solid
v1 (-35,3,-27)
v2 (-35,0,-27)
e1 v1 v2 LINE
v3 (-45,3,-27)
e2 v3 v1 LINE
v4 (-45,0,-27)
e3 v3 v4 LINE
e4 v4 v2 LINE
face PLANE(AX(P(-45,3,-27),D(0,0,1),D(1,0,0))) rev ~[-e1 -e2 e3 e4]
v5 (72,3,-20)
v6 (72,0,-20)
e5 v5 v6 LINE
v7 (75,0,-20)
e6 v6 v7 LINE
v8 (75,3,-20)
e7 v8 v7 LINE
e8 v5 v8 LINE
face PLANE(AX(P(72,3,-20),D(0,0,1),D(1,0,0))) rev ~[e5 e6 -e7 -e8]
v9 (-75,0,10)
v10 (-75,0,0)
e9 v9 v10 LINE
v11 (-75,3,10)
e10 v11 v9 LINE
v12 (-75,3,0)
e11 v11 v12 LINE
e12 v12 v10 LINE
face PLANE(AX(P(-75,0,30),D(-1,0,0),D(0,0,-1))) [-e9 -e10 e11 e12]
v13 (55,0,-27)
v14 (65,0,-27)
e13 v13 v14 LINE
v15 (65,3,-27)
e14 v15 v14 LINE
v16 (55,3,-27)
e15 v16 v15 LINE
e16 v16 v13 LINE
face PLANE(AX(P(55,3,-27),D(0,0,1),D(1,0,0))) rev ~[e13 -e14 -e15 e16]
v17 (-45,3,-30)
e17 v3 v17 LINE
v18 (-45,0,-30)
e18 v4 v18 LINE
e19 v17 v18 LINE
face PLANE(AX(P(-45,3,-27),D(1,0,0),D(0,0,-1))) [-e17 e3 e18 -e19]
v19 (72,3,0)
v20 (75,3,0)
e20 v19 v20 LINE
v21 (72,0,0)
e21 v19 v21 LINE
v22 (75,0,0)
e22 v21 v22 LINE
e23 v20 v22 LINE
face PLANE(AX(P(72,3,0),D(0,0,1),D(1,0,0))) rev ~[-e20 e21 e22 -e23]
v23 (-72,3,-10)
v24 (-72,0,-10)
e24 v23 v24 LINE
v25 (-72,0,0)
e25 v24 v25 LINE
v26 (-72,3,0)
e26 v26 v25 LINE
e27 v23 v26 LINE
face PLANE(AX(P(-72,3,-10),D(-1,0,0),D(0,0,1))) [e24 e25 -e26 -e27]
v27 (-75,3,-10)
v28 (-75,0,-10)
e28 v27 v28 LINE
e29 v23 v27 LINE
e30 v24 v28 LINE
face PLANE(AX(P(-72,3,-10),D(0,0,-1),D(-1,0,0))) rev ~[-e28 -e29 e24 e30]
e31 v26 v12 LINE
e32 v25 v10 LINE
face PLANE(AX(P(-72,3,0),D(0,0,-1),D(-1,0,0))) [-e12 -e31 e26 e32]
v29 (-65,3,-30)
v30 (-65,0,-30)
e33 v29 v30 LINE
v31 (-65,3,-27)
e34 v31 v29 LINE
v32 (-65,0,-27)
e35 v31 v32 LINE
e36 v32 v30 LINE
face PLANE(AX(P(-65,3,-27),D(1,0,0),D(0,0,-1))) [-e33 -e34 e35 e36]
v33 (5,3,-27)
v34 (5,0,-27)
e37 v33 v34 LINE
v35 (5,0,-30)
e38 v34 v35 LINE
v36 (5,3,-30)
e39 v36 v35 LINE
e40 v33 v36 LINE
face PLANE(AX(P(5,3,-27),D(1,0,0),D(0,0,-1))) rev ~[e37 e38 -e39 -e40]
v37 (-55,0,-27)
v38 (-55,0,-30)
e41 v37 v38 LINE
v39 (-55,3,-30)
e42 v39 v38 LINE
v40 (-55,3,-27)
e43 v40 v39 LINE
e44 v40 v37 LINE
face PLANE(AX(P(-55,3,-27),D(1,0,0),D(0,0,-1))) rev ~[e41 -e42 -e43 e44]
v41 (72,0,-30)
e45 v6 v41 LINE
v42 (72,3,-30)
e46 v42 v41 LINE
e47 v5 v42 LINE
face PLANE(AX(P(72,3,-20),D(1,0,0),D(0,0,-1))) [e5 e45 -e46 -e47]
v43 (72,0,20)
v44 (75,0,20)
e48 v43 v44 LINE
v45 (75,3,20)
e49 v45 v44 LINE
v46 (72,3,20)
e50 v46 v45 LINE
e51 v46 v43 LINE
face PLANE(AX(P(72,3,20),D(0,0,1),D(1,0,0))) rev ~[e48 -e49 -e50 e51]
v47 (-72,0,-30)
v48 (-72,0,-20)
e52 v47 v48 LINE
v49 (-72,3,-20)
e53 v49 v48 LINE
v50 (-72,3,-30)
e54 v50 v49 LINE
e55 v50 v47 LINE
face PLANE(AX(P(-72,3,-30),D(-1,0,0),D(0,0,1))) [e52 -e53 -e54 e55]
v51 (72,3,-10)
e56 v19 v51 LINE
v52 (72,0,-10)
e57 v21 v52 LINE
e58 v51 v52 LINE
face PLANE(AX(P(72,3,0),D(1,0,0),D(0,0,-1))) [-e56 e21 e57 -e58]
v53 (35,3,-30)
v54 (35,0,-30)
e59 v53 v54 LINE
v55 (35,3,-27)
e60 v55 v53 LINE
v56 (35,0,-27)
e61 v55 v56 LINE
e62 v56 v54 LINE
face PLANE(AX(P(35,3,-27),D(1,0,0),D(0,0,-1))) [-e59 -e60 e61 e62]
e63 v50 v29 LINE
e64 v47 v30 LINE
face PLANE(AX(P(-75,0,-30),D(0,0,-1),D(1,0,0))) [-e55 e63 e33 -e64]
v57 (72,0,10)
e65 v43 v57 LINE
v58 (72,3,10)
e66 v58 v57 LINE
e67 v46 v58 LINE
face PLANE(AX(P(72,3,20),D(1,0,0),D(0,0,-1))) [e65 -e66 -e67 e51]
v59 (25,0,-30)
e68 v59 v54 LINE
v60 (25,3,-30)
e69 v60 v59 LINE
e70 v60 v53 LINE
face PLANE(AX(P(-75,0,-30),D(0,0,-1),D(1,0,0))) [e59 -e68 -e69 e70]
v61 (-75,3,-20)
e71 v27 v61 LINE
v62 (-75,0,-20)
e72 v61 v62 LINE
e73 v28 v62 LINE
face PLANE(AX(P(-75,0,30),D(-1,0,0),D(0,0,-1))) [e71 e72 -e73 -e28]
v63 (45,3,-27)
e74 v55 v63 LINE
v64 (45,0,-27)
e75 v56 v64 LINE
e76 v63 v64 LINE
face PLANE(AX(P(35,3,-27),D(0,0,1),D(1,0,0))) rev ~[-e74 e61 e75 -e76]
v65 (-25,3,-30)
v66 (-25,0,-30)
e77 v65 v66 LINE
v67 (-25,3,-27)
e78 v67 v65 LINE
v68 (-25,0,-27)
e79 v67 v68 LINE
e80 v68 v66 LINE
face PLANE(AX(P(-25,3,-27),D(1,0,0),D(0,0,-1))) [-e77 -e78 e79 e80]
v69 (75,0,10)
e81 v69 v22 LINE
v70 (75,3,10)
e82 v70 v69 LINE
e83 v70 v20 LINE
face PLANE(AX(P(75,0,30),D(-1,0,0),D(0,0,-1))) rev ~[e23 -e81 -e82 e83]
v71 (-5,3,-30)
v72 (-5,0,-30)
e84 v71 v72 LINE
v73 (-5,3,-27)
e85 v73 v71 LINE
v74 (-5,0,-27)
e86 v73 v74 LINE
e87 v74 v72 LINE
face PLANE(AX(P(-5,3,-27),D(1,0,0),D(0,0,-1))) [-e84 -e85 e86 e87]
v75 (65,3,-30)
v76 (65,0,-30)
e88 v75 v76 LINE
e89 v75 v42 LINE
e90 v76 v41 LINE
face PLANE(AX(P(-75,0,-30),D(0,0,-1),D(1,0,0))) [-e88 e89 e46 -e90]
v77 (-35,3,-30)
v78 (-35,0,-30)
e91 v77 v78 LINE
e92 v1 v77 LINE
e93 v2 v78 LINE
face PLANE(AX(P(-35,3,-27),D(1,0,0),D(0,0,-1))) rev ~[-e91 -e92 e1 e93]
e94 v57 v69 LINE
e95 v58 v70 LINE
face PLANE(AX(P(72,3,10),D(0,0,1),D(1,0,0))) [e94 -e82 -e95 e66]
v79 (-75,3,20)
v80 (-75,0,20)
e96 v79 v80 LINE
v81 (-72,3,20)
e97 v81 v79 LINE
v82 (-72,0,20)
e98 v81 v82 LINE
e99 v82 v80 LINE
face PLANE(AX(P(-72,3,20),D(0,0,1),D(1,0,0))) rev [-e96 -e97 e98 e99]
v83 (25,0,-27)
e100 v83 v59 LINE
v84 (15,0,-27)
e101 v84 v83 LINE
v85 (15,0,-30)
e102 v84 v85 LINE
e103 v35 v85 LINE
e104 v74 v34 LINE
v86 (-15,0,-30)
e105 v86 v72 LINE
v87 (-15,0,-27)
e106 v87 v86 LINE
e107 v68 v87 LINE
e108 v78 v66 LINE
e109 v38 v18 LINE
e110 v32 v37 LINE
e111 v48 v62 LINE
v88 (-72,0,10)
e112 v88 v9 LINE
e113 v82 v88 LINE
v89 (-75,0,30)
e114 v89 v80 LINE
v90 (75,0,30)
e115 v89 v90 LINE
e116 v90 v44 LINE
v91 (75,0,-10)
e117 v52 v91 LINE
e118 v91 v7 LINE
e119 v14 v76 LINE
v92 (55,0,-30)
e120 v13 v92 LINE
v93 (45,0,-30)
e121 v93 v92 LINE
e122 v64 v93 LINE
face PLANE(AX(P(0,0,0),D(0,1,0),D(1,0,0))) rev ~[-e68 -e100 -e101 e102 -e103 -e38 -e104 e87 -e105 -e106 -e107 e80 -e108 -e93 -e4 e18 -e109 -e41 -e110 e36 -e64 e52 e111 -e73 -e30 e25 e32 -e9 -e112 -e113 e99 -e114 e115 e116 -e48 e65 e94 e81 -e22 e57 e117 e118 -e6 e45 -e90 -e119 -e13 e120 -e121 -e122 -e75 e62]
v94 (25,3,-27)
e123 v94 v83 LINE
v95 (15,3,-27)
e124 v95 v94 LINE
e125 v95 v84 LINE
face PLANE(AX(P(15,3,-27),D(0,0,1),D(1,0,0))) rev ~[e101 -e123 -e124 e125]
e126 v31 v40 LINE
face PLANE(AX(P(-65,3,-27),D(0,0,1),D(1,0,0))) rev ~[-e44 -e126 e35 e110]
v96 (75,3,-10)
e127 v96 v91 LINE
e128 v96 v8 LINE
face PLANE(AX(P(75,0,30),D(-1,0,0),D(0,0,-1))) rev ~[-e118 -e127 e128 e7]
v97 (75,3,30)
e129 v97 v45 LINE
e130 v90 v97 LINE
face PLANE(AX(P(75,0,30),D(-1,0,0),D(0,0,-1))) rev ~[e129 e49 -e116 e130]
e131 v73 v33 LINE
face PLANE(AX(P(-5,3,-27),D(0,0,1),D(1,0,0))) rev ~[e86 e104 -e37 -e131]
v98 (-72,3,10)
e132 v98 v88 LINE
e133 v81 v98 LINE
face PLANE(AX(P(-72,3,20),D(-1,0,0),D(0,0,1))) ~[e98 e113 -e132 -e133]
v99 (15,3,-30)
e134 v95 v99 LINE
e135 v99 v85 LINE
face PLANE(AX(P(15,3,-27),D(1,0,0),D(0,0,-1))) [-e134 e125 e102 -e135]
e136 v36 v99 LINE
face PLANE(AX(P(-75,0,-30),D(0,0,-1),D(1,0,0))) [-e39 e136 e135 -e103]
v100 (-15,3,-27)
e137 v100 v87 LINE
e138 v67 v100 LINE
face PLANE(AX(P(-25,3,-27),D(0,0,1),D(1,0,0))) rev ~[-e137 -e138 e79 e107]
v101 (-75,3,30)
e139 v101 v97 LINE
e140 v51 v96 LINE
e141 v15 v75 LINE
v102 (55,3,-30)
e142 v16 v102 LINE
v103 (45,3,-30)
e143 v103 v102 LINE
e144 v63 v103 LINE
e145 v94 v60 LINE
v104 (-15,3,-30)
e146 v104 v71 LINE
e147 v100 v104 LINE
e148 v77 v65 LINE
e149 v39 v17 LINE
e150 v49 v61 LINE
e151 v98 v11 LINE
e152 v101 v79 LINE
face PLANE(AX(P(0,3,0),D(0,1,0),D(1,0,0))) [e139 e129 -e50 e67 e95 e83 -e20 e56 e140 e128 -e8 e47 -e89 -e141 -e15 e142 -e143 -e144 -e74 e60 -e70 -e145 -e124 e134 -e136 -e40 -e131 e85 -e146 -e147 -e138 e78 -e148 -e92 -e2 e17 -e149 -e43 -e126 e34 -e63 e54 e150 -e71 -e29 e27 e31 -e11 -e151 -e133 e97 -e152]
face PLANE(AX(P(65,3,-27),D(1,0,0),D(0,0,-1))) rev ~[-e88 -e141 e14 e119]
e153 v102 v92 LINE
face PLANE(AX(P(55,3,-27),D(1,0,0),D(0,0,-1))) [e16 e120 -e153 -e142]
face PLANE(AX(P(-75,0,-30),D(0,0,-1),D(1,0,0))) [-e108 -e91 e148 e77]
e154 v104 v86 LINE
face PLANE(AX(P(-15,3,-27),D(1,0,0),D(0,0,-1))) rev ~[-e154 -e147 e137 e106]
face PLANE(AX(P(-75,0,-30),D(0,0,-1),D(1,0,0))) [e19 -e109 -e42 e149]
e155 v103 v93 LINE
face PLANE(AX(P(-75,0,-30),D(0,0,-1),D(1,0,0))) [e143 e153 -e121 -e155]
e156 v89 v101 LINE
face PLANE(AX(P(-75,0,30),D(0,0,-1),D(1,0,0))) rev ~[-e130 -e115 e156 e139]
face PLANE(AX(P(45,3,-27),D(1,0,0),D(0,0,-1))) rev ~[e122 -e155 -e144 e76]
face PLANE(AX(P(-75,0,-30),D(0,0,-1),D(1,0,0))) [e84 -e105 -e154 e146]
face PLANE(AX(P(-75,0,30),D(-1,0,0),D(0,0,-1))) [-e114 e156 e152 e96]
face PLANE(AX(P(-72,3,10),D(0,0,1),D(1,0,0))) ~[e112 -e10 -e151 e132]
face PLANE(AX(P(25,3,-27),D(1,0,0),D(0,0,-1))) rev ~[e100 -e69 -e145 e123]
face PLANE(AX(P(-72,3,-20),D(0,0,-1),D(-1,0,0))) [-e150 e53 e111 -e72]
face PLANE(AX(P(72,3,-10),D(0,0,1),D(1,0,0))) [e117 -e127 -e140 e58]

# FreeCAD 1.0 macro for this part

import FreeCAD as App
import Part
import Sketcher

V = App.Vector

doc = App.newDocument("Part")
params = doc.addObject("Spreadsheet::Sheet", "Params")
for row, (alias, value) in enumerate([
    ("sketch1_width", "150 mm"),
    ("sketch1_height", "60 mm"),
    ("pad1_length", "3 mm"),
    ("sketch2_width", "3 mm"),
    ("sketch2_height", "10 mm"),
    ("linearpattern_pitch", "20 mm"),
    ("sketch3_width", "3 mm"),
    ("sketch3_height", "10 mm"),
    ("sketch4_width", "3 mm"),
    ("sketch4_height", "10 mm"),
    ("sketch5_width", "10 mm"),
    ("sketch5_height", "3 mm"),
    ("linearpattern2_pitch", "20 mm"),
], start=1):
    params.set(f"A{row}", alias)
    params.set(f"B{row}", "=" + value)
    params.setAlias(f"B{row}", alias)

body = doc.addObject("PartDesign::Body", "Body")

# Sketch on XZ plane
sketch1 = doc.addObject("Sketcher::SketchObject", "Sketch")
body.addObject(sketch1)
sketch1.AttachmentSupport = (doc.XZ_Plane, [""])
sketch1.MapMode = "FlatFace"
sketch1.addGeometry([
    Part.LineSegment(V(-75, -30, 0), V(-75, 30, 0)),
    Part.LineSegment(V(-75, 30, 0), V(75, 30, 0)),
    Part.LineSegment(V(75, 30, 0), V(75, -30, 0)),
    Part.LineSegment(V(75, -30, 0), V(-75, -30, 0)),
], False)
sketch1.addConstraint([
    Sketcher.Constraint("Coincident", 0, 2, 1, 1),
    Sketcher.Constraint("Coincident", 1, 2, 2, 1),
    Sketcher.Constraint("Coincident", 2, 2, 3, 1),
    Sketcher.Constraint("Coincident", 3, 2, 0, 1),
    Sketcher.Constraint("Vertical", 0),
    Sketcher.Constraint("Horizontal", 1),
    Sketcher.Constraint("Vertical", 2),
    Sketcher.Constraint("Horizontal", 3),
    Sketcher.Constraint("Symmetric", 0, 2, 2, 2, -1, 1),
    Sketcher.Constraint("DistanceX", 1, 1, 1, 2, 150.0),
    Sketcher.Constraint("DistanceY", 0, 1, 0, 2, 60.0),
])
sketch1.setExpression("Constraints[9]", "Params.sketch1_width")
sketch1.setExpression("Constraints[10]", "Params.sketch1_height")
pad1 = doc.addObject("PartDesign::Pad", "Pad")
body.addObject(pad1)
pad1.Profile = sketch1
pad1.setExpression("Length", "Params.pad1_length")
pad1.Reversed = True

# Sketch on XZ plane
sketch2 = doc.addObject("Sketcher::SketchObject", "Sketch001")
body.addObject(sketch2)
sketch2.AttachmentSupport = (doc.XZ_Plane, [""])
sketch2.MapMode = "FlatFace"
sketch2.AttachmentOffset = App.Placement(V(0, 0, -3), App.Rotation())
sketch2.addGeometry([
    Part.LineSegment(V(72, 10, 0), V(72, 20, 0)),
    Part.LineSegment(V(72, 20, 0), V(75, 20, 0)),
    Part.LineSegment(V(75, 20, 0), V(75, 10, 0)),
    Part.LineSegment(V(75, 10, 0), V(72, 10, 0)),
], False)
sketch2.addConstraint([
    Sketcher.Constraint("Coincident", 0, 2, 1, 1),
    Sketcher.Constraint("Coincident", 1, 2, 2, 1),
    Sketcher.Constraint("Coincident", 2, 2, 3, 1),
    Sketcher.Constraint("Coincident", 3, 2, 0, 1),
    Sketcher.Constraint("Vertical", 0),
    Sketcher.Constraint("Horizontal", 1),
    Sketcher.Constraint("Vertical", 2),
    Sketcher.Constraint("Horizontal", 3),
    Sketcher.Constraint("DistanceX", 1, 1, 1, 2, 3.0),
    Sketcher.Constraint("DistanceY", 0, 1, 0, 2, 10.0),
    Sketcher.Constraint("DistanceX", -1, 1, 0, 2, 72.0),
    Sketcher.Constraint("DistanceY", -1, 1, 0, 2, 20.0),
])
sketch2.setExpression("Constraints[8]", "Params.sketch2_width")
sketch2.setExpression("Constraints[9]", "Params.sketch2_height")
pocket1 = doc.addObject("PartDesign::Pocket", "Pocket")
body.addObject(pocket1)
pocket1.Profile = sketch2
pocket1.Type = "ThroughAll"
pocket1.Reversed = True
doc.recompute()

linearpattern = doc.addObject("PartDesign::LinearPattern", "LinearPattern")
body.addObject(linearpattern)
linearpattern.Originals = [pocket1]
linearpattern.Direction = (doc.Z_Axis, [""])
linearpattern.Mode = "offset"
linearpattern.setExpression("Offset", "Params.linearpattern_pitch")
linearpattern.Occurrences = 3
linearpattern.Reversed = True
body.Tip = linearpattern
doc.recompute()

mirrored = doc.addObject("PartDesign::Mirrored", "Mirrored")
body.addObject(mirrored)
mirrored.Originals = [pocket1]
mirrored.MirrorPlane = (doc.YZ_Plane, [""])
body.Tip = mirrored

# Sketch on XZ plane
sketch3 = doc.addObject("Sketcher::SketchObject", "Sketch002")
body.addObject(sketch3)
sketch3.AttachmentSupport = (doc.XZ_Plane, [""])
sketch3.MapMode = "FlatFace"
sketch3.AttachmentOffset = App.Placement(V(0, 0, -3), App.Rotation())
sketch3.addGeometry([
    Part.LineSegment(V(-72, 0, 0), V(-72, -10, 0)),
    Part.LineSegment(V(-72, -10, 0), V(-75, -10, 0)),
    Part.LineSegment(V(-75, -10, 0), V(-75, 0, 0)),
    Part.LineSegment(V(-75, 0, 0), V(-72, 0, 0)),
], False)
sketch3.addConstraint([
    Sketcher.Constraint("Coincident", 0, 2, 1, 1),
    Sketcher.Constraint("Coincident", 1, 2, 2, 1),
    Sketcher.Constraint("Coincident", 2, 2, 3, 1),
    Sketcher.Constraint("Coincident", 3, 2, 0, 1),
    Sketcher.Constraint("Vertical", 0),
    Sketcher.Constraint("Horizontal", 1),
    Sketcher.Constraint("Vertical", 2),
    Sketcher.Constraint("Horizontal", 3),
    Sketcher.Constraint("PointOnObject", 2, 2, -1),
    Sketcher.Constraint("DistanceX", 1, 2, 1, 1, 3.0),
    Sketcher.Constraint("DistanceY", 0, 2, 0, 1, 10.0),
    Sketcher.Constraint("DistanceX", 0, 2, -1, 1, 72.0),
])
sketch3.setExpression("Constraints[9]", "Params.sketch3_width")
sketch3.setExpression("Constraints[10]", "Params.sketch3_height")
pocket2 = doc.addObject("PartDesign::Pocket", "Pocket001")
body.addObject(pocket2)
pocket2.Profile = sketch3
pocket2.Type = "ThroughAll"
pocket2.Reversed = True

# Sketch on XZ plane
sketch4 = doc.addObject("Sketcher::SketchObject", "Sketch003")
body.addObject(sketch4)
sketch4.AttachmentSupport = (doc.XZ_Plane, [""])
sketch4.MapMode = "FlatFace"
sketch4.AttachmentOffset = App.Placement(V(0, 0, -3), App.Rotation())
sketch4.addGeometry([
    Part.LineSegment(V(-72, -20, 0), V(-72, -30, 0)),
    Part.LineSegment(V(-72, -30, 0), V(-75, -30, 0)),
    Part.LineSegment(V(-75, -30, 0), V(-75, -20, 0)),
    Part.LineSegment(V(-75, -20, 0), V(-72, -20, 0)),
], False)
sketch4.addConstraint([
    Sketcher.Constraint("Coincident", 0, 2, 1, 1),
    Sketcher.Constraint("Coincident", 1, 2, 2, 1),
    Sketcher.Constraint("Coincident", 2, 2, 3, 1),
    Sketcher.Constraint("Coincident", 3, 2, 0, 1),
    Sketcher.Constraint("Vertical", 0),
    Sketcher.Constraint("Horizontal", 1),
    Sketcher.Constraint("Vertical", 2),
    Sketcher.Constraint("Horizontal", 3),
    Sketcher.Constraint("DistanceX", 1, 2, 1, 1, 3.0),
    Sketcher.Constraint("DistanceY", 0, 2, 0, 1, 10.0),
    Sketcher.Constraint("DistanceX", 0, 2, -1, 1, 72.0),
    Sketcher.Constraint("DistanceY", 0, 2, -1, 1, 30.0),
])
sketch4.setExpression("Constraints[8]", "Params.sketch4_width")
sketch4.setExpression("Constraints[9]", "Params.sketch4_height")
pocket3 = doc.addObject("PartDesign::Pocket", "Pocket002")
body.addObject(pocket3)
pocket3.Profile = sketch4
pocket3.Type = "ThroughAll"
pocket3.Reversed = True

# Sketch on XZ plane
sketch5 = doc.addObject("Sketcher::SketchObject", "Sketch004")
body.addObject(sketch5)
sketch5.AttachmentSupport = (doc.XZ_Plane, [""])
sketch5.MapMode = "FlatFace"
sketch5.AttachmentOffset = App.Placement(V(0, 0, -3), App.Rotation())
sketch5.addGeometry([
    Part.LineSegment(V(-65, -30, 0), V(-65, -27, 0)),
    Part.LineSegment(V(-65, -27, 0), V(-55, -27, 0)),
    Part.LineSegment(V(-55, -27, 0), V(-55, -30, 0)),
    Part.LineSegment(V(-55, -30, 0), V(-65, -30, 0)),
], False)
sketch5.addConstraint([
    Sketcher.Constraint("Coincident", 0, 2, 1, 1),
    Sketcher.Constraint("Coincident", 1, 2, 2, 1),
    Sketcher.Constraint("Coincident", 2, 2, 3, 1),
    Sketcher.Constraint("Coincident", 3, 2, 0, 1),
    Sketcher.Constraint("Vertical", 0),
    Sketcher.Constraint("Horizontal", 1),
    Sketcher.Constraint("Vertical", 2),
    Sketcher.Constraint("Horizontal", 3),
    Sketcher.Constraint("DistanceX", 1, 1, 1, 2, 10.0),
    Sketcher.Constraint("DistanceY", 0, 1, 0, 2, 3.0),
    Sketcher.Constraint("DistanceX", 0, 2, -1, 1, 65.0),
    Sketcher.Constraint("DistanceY", 0, 2, -1, 1, 27.0),
])
sketch5.setExpression("Constraints[8]", "Params.sketch5_width")
sketch5.setExpression("Constraints[9]", "Params.sketch5_height")
pocket4 = doc.addObject("PartDesign::Pocket", "Pocket003")
body.addObject(pocket4)
pocket4.Profile = sketch5
pocket4.Type = "ThroughAll"
pocket4.Reversed = True
doc.recompute()

linearpattern2 = doc.addObject("PartDesign::LinearPattern", "LinearPattern001")
body.addObject(linearpattern2)
linearpattern2.Originals = [pocket4]
linearpattern2.Direction = (doc.X_Axis, [""])
linearpattern2.Mode = "offset"
linearpattern2.setExpression("Offset", "Params.linearpattern2_pitch")
linearpattern2.Occurrences = 7
body.Tip = linearpattern2

doc.recompute()
